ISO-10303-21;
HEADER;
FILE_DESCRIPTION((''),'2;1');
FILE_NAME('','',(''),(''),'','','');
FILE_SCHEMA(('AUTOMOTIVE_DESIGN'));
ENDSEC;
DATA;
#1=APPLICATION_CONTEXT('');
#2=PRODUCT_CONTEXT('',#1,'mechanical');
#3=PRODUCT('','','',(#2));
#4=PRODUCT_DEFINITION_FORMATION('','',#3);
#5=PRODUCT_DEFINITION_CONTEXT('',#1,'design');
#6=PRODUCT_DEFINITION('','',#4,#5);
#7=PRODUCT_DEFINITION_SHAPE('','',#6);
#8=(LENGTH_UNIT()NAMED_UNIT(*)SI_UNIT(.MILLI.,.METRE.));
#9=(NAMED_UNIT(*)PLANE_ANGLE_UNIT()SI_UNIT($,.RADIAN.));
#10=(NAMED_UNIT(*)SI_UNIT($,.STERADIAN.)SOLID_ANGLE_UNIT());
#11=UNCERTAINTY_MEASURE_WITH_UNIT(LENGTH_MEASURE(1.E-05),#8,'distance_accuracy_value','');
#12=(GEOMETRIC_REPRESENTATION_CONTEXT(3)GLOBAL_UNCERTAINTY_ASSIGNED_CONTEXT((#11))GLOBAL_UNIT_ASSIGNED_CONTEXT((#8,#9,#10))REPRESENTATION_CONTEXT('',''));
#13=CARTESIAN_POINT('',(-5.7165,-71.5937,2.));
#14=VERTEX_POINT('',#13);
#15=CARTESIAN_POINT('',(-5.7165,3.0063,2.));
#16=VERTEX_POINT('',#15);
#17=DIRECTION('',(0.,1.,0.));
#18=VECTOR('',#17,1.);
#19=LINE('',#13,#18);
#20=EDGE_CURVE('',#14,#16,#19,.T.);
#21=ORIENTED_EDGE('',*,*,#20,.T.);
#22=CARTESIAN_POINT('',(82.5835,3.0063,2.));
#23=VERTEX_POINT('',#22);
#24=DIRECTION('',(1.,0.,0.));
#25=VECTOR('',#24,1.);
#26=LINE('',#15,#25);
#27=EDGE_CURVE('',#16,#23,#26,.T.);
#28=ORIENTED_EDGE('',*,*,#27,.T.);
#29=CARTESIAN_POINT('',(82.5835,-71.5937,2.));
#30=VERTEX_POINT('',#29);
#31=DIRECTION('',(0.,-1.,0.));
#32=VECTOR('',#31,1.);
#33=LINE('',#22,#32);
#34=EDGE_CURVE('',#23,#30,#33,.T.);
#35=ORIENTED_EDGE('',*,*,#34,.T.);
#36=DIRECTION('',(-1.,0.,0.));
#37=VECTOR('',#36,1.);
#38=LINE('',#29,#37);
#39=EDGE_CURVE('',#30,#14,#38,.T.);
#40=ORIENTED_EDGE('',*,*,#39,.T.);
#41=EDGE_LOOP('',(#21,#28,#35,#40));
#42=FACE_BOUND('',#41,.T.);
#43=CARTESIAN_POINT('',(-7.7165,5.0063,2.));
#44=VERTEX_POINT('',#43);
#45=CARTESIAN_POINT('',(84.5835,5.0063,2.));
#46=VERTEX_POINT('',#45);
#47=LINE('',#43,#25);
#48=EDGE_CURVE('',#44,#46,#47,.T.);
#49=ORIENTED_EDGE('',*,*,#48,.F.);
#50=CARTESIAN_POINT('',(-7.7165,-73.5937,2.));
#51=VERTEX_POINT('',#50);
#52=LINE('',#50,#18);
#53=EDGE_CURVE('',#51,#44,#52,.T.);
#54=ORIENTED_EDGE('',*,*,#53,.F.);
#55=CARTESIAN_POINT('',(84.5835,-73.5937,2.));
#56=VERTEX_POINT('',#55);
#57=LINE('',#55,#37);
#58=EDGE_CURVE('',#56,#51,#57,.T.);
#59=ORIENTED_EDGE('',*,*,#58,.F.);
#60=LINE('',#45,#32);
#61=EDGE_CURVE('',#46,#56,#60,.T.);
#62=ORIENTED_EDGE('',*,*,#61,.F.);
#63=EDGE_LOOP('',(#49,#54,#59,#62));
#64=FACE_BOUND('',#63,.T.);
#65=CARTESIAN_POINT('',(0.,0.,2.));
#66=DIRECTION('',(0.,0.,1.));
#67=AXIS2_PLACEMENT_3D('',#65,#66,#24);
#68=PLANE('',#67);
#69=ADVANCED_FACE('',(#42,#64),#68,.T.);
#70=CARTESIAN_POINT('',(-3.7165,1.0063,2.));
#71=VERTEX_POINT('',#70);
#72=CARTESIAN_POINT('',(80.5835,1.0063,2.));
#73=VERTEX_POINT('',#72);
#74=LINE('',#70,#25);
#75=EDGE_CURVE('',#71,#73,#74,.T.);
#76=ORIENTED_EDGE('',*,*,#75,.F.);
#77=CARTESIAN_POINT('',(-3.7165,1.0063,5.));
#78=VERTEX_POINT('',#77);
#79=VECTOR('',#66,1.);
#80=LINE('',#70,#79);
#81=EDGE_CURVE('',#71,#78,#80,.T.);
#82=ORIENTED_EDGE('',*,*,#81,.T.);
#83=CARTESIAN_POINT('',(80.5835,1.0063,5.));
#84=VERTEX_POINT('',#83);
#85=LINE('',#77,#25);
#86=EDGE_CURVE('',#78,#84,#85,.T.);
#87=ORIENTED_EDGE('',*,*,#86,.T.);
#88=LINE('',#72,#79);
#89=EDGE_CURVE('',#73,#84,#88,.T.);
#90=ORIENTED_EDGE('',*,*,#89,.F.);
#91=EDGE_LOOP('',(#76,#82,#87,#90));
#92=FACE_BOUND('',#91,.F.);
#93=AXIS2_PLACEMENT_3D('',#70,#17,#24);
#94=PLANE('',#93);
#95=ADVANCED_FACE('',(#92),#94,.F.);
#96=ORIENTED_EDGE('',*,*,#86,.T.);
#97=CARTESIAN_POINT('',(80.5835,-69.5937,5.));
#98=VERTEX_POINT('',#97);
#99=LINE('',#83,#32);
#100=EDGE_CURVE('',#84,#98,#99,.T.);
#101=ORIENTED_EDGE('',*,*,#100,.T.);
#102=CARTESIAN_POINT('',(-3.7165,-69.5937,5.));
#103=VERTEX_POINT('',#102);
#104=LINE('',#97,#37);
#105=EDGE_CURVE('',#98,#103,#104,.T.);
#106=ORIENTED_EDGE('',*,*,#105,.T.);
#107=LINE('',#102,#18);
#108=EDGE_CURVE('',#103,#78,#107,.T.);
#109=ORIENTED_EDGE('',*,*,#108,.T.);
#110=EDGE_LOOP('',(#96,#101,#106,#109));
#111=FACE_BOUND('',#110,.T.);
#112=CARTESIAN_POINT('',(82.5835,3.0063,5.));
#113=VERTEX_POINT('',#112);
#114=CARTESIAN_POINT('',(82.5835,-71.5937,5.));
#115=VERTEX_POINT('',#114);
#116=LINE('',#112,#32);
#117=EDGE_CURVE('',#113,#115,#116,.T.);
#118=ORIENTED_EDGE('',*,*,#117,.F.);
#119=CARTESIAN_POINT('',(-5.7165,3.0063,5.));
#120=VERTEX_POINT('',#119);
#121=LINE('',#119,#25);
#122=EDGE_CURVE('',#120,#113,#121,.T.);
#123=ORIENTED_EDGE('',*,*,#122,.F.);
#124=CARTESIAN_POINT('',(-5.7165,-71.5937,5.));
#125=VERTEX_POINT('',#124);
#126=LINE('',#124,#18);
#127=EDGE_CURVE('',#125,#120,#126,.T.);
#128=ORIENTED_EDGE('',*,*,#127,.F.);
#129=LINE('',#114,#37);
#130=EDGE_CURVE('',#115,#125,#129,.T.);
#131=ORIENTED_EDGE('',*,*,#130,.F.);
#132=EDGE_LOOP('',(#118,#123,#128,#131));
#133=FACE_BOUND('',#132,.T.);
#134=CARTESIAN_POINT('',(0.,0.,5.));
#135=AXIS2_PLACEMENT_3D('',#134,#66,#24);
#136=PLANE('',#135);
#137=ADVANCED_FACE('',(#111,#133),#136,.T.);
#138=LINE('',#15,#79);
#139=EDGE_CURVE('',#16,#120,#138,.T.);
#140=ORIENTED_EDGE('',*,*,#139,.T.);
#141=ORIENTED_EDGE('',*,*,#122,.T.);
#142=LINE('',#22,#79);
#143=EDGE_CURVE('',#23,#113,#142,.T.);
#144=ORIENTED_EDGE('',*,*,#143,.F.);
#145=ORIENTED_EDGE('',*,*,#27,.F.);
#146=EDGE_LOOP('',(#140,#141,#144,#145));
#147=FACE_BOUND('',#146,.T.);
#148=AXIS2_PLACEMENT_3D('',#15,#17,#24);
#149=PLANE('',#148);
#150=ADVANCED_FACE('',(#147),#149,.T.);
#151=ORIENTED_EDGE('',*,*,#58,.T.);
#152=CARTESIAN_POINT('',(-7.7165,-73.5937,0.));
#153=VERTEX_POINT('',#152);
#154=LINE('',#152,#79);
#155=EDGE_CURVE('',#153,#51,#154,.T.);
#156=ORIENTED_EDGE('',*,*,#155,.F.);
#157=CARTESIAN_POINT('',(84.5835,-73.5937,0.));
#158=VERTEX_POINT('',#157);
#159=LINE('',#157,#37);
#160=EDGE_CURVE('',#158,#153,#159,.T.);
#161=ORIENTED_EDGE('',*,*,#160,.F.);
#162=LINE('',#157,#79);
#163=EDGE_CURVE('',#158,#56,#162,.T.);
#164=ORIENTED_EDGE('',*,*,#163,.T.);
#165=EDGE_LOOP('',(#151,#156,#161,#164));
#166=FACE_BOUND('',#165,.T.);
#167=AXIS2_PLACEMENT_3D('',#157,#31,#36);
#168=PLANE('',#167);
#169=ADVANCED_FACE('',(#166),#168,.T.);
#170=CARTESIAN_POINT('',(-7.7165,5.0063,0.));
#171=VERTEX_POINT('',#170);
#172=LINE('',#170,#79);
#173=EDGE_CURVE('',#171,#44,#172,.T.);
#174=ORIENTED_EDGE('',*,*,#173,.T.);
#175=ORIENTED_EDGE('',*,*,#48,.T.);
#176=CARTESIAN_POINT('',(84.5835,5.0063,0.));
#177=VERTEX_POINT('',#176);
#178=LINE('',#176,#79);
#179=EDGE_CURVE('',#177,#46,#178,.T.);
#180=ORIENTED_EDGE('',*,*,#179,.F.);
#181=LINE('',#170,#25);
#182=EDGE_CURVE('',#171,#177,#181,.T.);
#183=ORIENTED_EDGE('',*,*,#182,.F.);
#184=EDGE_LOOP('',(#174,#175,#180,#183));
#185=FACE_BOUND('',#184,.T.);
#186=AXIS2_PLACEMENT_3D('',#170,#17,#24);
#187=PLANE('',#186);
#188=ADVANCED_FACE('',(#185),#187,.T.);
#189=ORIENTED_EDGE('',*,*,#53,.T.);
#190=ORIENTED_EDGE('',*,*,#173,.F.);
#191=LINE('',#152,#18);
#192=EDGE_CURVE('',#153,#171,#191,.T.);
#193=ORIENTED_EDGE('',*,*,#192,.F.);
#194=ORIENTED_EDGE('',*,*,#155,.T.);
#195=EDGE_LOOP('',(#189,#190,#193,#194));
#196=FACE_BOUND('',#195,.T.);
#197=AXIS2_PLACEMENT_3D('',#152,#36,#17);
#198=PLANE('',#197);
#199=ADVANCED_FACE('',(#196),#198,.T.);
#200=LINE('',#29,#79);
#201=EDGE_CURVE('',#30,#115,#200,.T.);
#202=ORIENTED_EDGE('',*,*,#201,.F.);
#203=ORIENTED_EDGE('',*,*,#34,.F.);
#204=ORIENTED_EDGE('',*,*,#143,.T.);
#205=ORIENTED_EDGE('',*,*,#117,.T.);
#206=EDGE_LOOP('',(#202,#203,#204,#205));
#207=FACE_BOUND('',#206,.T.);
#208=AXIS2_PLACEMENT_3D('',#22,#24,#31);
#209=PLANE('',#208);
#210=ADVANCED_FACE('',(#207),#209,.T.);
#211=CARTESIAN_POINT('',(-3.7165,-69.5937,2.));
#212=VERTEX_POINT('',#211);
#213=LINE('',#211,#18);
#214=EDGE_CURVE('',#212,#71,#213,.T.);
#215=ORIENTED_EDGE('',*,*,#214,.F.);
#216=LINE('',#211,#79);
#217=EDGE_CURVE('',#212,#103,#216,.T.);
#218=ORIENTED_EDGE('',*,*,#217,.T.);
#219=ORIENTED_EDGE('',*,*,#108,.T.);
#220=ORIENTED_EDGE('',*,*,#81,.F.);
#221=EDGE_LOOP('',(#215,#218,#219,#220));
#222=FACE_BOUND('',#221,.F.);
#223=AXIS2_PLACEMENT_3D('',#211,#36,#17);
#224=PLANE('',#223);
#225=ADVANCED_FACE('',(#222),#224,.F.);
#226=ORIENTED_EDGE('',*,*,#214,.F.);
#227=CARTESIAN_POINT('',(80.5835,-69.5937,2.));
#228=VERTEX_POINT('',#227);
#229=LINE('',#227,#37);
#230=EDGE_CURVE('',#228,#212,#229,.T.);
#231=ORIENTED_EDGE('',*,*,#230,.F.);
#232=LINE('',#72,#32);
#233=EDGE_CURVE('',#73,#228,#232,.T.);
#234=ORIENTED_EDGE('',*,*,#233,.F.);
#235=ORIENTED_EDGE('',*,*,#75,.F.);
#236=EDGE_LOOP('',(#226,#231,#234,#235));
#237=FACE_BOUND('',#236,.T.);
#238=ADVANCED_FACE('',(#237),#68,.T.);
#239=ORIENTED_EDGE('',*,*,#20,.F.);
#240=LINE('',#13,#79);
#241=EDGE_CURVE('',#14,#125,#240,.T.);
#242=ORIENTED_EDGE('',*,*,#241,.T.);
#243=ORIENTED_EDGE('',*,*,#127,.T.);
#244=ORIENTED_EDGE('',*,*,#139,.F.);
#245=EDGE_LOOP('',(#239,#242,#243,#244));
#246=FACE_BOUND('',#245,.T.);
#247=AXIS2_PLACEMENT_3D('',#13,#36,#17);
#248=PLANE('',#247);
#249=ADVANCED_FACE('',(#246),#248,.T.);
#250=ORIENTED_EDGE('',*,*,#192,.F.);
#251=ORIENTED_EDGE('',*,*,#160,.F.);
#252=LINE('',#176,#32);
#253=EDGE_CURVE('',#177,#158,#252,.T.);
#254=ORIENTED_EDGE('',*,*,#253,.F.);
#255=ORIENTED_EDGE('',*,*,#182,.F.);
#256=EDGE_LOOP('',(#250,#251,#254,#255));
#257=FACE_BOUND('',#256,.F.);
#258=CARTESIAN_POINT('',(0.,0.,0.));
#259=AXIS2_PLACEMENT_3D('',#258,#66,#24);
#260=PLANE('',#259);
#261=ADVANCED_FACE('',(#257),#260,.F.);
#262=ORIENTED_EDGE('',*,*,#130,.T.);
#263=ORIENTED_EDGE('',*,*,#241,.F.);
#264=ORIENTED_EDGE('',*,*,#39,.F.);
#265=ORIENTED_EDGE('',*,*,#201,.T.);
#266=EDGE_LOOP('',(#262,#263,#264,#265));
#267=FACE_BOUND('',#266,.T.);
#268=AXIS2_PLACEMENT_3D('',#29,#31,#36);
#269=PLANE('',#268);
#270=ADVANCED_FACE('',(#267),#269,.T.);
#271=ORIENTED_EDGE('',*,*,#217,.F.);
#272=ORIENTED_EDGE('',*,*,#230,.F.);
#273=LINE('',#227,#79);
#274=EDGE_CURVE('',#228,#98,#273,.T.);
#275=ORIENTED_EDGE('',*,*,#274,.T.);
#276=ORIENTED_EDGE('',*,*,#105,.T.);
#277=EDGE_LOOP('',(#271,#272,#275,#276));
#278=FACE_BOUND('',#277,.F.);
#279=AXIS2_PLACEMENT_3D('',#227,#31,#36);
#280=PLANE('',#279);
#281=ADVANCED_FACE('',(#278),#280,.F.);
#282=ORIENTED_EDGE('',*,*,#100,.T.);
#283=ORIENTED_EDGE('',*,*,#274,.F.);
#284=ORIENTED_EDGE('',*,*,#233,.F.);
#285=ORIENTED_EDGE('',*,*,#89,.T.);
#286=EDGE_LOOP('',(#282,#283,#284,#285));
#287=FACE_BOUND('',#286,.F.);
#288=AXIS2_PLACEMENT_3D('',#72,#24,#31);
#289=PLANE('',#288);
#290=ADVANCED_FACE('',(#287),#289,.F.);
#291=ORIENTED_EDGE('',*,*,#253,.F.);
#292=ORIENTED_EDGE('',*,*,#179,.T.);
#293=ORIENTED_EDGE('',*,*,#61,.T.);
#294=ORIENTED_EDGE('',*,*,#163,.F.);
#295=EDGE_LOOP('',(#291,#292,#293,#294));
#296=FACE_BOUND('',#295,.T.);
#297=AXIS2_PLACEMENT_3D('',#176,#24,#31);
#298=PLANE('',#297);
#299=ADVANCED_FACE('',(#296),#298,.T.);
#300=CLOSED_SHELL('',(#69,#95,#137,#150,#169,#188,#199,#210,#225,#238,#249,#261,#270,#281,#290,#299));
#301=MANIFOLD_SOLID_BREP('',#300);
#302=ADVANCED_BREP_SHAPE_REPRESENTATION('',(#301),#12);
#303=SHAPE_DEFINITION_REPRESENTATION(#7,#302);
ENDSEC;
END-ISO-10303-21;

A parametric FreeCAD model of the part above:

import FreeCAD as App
import Part
import Sketcher

V = App.Vector

doc = App.newDocument("Part")
params = doc.addObject("Spreadsheet::Sheet", "Params")
for row, (alias, value) in enumerate([
    ("sketch1_width", "92.3 mm"),
    ("sketch1_height", "78.6 mm"),
    ("pad1_length", "2 mm"),
    ("sketch2_width", "88.3 mm"),
    ("sketch2_height", "74.6 mm"),
    ("pad2_length", "3 mm"),
], start=1):
    params.set(f"A{row}", alias)
    params.set(f"B{row}", "=" + value)
    params.setAlias(f"B{row}", alias)

body = doc.addObject("PartDesign::Body", "Body")

sketch1 = body.newObject("Sketcher::SketchObject", "Sketch")
sketch1.AttachmentSupport = (doc.getObject("XY_Plane"), [""])
sketch1.MapMode = "FlatFace"
sketch1.addGeometry(Part.LineSegment(V(85, 5, 0), V(-8, 5, 0)), False)
sketch1.addGeometry(Part.LineSegment(V(-8, 5, 0), V(-8, -74, 0)), False)
sketch1.addGeometry(Part.LineSegment(V(-8, -74, 0), V(85, -74, 0)), False)
sketch1.addGeometry(Part.LineSegment(V(85, -74, 0), V(85, 5, 0)), False)
sketch1.addConstraint(Sketcher.Constraint("Coincident", 0, 2, 1, 1))
sketch1.addConstraint(Sketcher.Constraint("Coincident", 1, 2, 2, 1))
sketch1.addConstraint(Sketcher.Constraint("Coincident", 2, 2, 3, 1))
sketch1.addConstraint(Sketcher.Constraint("Coincident", 3, 2, 0, 1))
sketch1.addConstraint(Sketcher.Constraint("Horizontal", 0))
sketch1.addConstraint(Sketcher.Constraint("Vertical", 1))
sketch1.addConstraint(Sketcher.Constraint("Horizontal", 2))
sketch1.addConstraint(Sketcher.Constraint("Vertical", 3))
sketch1.addConstraint(Sketcher.Constraint("DistanceX", 0, 2, 0, 1, 92.3))
sketch1.addConstraint(Sketcher.Constraint("DistanceY", 1, 2, 1, 1, 78.6))
sketch1.addConstraint(Sketcher.Constraint("DistanceX", 0, 2, -1, 1, 7.7165))
sketch1.addConstraint(Sketcher.Constraint("DistanceY", -1, 1, 0, 2, 5.0063))
sketch1.setExpression("Constraints[8]", "Params.sketch1_width")
sketch1.setExpression("Constraints[9]", "Params.sketch1_height")
pad1 = body.newObject("PartDesign::Pad", "Pad")
pad1.Profile = sketch1
pad1.setExpression("Length", "Params.pad1_length")

sketch2 = body.newObject("Sketcher::SketchObject", "Sketch001")
sketch2.AttachmentSupport = (doc.getObject("XY_Plane"), [""])
sketch2.MapMode = "FlatFace"
sketch2.AttachmentOffset = App.Placement(V(0, 0, 2), App.Rotation())
sketch2.addGeometry(Part.LineSegment(V(83, 3, 0), V(-6, 3, 0)), False)
sketch2.addGeometry(Part.LineSegment(V(-6, 3, 0), V(-6, -72, 0)), False)
sketch2.addGeometry(Part.LineSegment(V(-6, -72, 0), V(83, -72, 0)), False)
sketch2.addGeometry(Part.LineSegment(V(83, -72, 0), V(83, 3, 0)), False)
sketch2.addGeometry(Part.LineSegment(V(-4, -70, 0), V(-4, 1, 0)), False)
sketch2.addGeometry(Part.LineSegment(V(-4, 1, 0), V(81, 1, 0)), False)
sketch2.addGeometry(Part.LineSegment(V(81, 1, 0), V(81, -70, 0)), False)
sketch2.addGeometry(Part.LineSegment(V(81, -70, 0), V(-4, -70, 0)), False)
sketch2.addConstraint(Sketcher.Constraint("Coincident", 0, 2, 1, 1))
sketch2.addConstraint(Sketcher.Constraint("Coincident", 1, 2, 2, 1))
sketch2.addConstraint(Sketcher.Constraint("Coincident", 2, 2, 3, 1))
sketch2.addConstraint(Sketcher.Constraint("Coincident", 3, 2, 0, 1))
sketch2.addConstraint(Sketcher.Constraint("Coincident", 4, 2, 5, 1))
sketch2.addConstraint(Sketcher.Constraint("Coincident", 5, 2, 6, 1))
sketch2.addConstraint(Sketcher.Constraint("Coincident", 6, 2, 7, 1))
sketch2.addConstraint(Sketcher.Constraint("Coincident", 7, 2, 4, 1))
sketch2.addConstraint(Sketcher.Constraint("Horizontal", 0))
sketch2.addConstraint(Sketcher.Constraint("Vertical", 1))
sketch2.addConstraint(Sketcher.Constraint("Horizontal", 2))
sketch2.addConstraint(Sketcher.Constraint("Vertical", 3))
sketch2.addConstraint(Sketcher.Constraint("Vertical", 4))
sketch2.addConstraint(Sketcher.Constraint("Horizontal", 5))
sketch2.addConstraint(Sketcher.Constraint("Vertical", 6))
sketch2.addConstraint(Sketcher.Constraint("Horizontal", 7))
sketch2.addConstraint(Sketcher.Constraint("DistanceX", 0, 2, 4, 2, 2.0))
sketch2.addConstraint(Sketcher.Constraint("DistanceY", 4, 2, 0, 2, 2.0))
sketch2.addConstraint(Sketcher.Constraint("DistanceX", 5, 2, 3, 2, 2.0))
sketch2.addConstraint(Sketcher.Constraint("DistanceY", 2, 2, 6, 2, 2.0))
sketch2.addConstraint(Sketcher.Constraint("DistanceX", 0, 2, 0, 1, 88.3))
sketch2.addConstraint(Sketcher.Constraint("DistanceY", 1, 2, 1, 1, 74.6))
sketch2.addConstraint(Sketcher.Constraint("DistanceX", 0, 2, -1, 1, 5.7165))
sketch2.addConstraint(Sketcher.Constraint("DistanceY", -1, 1, 0, 2, 3.0063))
sketch2.setExpression("Constraints[20]", "Params.sketch2_width")
sketch2.setExpression("Constraints[21]", "Params.sketch2_height")
pad2 = body.newObject("PartDesign::Pad", "Pad001")
pad2.Profile = sketch2
pad2.setExpression("Length", "Params.pad2_length")

doc.recompute()
